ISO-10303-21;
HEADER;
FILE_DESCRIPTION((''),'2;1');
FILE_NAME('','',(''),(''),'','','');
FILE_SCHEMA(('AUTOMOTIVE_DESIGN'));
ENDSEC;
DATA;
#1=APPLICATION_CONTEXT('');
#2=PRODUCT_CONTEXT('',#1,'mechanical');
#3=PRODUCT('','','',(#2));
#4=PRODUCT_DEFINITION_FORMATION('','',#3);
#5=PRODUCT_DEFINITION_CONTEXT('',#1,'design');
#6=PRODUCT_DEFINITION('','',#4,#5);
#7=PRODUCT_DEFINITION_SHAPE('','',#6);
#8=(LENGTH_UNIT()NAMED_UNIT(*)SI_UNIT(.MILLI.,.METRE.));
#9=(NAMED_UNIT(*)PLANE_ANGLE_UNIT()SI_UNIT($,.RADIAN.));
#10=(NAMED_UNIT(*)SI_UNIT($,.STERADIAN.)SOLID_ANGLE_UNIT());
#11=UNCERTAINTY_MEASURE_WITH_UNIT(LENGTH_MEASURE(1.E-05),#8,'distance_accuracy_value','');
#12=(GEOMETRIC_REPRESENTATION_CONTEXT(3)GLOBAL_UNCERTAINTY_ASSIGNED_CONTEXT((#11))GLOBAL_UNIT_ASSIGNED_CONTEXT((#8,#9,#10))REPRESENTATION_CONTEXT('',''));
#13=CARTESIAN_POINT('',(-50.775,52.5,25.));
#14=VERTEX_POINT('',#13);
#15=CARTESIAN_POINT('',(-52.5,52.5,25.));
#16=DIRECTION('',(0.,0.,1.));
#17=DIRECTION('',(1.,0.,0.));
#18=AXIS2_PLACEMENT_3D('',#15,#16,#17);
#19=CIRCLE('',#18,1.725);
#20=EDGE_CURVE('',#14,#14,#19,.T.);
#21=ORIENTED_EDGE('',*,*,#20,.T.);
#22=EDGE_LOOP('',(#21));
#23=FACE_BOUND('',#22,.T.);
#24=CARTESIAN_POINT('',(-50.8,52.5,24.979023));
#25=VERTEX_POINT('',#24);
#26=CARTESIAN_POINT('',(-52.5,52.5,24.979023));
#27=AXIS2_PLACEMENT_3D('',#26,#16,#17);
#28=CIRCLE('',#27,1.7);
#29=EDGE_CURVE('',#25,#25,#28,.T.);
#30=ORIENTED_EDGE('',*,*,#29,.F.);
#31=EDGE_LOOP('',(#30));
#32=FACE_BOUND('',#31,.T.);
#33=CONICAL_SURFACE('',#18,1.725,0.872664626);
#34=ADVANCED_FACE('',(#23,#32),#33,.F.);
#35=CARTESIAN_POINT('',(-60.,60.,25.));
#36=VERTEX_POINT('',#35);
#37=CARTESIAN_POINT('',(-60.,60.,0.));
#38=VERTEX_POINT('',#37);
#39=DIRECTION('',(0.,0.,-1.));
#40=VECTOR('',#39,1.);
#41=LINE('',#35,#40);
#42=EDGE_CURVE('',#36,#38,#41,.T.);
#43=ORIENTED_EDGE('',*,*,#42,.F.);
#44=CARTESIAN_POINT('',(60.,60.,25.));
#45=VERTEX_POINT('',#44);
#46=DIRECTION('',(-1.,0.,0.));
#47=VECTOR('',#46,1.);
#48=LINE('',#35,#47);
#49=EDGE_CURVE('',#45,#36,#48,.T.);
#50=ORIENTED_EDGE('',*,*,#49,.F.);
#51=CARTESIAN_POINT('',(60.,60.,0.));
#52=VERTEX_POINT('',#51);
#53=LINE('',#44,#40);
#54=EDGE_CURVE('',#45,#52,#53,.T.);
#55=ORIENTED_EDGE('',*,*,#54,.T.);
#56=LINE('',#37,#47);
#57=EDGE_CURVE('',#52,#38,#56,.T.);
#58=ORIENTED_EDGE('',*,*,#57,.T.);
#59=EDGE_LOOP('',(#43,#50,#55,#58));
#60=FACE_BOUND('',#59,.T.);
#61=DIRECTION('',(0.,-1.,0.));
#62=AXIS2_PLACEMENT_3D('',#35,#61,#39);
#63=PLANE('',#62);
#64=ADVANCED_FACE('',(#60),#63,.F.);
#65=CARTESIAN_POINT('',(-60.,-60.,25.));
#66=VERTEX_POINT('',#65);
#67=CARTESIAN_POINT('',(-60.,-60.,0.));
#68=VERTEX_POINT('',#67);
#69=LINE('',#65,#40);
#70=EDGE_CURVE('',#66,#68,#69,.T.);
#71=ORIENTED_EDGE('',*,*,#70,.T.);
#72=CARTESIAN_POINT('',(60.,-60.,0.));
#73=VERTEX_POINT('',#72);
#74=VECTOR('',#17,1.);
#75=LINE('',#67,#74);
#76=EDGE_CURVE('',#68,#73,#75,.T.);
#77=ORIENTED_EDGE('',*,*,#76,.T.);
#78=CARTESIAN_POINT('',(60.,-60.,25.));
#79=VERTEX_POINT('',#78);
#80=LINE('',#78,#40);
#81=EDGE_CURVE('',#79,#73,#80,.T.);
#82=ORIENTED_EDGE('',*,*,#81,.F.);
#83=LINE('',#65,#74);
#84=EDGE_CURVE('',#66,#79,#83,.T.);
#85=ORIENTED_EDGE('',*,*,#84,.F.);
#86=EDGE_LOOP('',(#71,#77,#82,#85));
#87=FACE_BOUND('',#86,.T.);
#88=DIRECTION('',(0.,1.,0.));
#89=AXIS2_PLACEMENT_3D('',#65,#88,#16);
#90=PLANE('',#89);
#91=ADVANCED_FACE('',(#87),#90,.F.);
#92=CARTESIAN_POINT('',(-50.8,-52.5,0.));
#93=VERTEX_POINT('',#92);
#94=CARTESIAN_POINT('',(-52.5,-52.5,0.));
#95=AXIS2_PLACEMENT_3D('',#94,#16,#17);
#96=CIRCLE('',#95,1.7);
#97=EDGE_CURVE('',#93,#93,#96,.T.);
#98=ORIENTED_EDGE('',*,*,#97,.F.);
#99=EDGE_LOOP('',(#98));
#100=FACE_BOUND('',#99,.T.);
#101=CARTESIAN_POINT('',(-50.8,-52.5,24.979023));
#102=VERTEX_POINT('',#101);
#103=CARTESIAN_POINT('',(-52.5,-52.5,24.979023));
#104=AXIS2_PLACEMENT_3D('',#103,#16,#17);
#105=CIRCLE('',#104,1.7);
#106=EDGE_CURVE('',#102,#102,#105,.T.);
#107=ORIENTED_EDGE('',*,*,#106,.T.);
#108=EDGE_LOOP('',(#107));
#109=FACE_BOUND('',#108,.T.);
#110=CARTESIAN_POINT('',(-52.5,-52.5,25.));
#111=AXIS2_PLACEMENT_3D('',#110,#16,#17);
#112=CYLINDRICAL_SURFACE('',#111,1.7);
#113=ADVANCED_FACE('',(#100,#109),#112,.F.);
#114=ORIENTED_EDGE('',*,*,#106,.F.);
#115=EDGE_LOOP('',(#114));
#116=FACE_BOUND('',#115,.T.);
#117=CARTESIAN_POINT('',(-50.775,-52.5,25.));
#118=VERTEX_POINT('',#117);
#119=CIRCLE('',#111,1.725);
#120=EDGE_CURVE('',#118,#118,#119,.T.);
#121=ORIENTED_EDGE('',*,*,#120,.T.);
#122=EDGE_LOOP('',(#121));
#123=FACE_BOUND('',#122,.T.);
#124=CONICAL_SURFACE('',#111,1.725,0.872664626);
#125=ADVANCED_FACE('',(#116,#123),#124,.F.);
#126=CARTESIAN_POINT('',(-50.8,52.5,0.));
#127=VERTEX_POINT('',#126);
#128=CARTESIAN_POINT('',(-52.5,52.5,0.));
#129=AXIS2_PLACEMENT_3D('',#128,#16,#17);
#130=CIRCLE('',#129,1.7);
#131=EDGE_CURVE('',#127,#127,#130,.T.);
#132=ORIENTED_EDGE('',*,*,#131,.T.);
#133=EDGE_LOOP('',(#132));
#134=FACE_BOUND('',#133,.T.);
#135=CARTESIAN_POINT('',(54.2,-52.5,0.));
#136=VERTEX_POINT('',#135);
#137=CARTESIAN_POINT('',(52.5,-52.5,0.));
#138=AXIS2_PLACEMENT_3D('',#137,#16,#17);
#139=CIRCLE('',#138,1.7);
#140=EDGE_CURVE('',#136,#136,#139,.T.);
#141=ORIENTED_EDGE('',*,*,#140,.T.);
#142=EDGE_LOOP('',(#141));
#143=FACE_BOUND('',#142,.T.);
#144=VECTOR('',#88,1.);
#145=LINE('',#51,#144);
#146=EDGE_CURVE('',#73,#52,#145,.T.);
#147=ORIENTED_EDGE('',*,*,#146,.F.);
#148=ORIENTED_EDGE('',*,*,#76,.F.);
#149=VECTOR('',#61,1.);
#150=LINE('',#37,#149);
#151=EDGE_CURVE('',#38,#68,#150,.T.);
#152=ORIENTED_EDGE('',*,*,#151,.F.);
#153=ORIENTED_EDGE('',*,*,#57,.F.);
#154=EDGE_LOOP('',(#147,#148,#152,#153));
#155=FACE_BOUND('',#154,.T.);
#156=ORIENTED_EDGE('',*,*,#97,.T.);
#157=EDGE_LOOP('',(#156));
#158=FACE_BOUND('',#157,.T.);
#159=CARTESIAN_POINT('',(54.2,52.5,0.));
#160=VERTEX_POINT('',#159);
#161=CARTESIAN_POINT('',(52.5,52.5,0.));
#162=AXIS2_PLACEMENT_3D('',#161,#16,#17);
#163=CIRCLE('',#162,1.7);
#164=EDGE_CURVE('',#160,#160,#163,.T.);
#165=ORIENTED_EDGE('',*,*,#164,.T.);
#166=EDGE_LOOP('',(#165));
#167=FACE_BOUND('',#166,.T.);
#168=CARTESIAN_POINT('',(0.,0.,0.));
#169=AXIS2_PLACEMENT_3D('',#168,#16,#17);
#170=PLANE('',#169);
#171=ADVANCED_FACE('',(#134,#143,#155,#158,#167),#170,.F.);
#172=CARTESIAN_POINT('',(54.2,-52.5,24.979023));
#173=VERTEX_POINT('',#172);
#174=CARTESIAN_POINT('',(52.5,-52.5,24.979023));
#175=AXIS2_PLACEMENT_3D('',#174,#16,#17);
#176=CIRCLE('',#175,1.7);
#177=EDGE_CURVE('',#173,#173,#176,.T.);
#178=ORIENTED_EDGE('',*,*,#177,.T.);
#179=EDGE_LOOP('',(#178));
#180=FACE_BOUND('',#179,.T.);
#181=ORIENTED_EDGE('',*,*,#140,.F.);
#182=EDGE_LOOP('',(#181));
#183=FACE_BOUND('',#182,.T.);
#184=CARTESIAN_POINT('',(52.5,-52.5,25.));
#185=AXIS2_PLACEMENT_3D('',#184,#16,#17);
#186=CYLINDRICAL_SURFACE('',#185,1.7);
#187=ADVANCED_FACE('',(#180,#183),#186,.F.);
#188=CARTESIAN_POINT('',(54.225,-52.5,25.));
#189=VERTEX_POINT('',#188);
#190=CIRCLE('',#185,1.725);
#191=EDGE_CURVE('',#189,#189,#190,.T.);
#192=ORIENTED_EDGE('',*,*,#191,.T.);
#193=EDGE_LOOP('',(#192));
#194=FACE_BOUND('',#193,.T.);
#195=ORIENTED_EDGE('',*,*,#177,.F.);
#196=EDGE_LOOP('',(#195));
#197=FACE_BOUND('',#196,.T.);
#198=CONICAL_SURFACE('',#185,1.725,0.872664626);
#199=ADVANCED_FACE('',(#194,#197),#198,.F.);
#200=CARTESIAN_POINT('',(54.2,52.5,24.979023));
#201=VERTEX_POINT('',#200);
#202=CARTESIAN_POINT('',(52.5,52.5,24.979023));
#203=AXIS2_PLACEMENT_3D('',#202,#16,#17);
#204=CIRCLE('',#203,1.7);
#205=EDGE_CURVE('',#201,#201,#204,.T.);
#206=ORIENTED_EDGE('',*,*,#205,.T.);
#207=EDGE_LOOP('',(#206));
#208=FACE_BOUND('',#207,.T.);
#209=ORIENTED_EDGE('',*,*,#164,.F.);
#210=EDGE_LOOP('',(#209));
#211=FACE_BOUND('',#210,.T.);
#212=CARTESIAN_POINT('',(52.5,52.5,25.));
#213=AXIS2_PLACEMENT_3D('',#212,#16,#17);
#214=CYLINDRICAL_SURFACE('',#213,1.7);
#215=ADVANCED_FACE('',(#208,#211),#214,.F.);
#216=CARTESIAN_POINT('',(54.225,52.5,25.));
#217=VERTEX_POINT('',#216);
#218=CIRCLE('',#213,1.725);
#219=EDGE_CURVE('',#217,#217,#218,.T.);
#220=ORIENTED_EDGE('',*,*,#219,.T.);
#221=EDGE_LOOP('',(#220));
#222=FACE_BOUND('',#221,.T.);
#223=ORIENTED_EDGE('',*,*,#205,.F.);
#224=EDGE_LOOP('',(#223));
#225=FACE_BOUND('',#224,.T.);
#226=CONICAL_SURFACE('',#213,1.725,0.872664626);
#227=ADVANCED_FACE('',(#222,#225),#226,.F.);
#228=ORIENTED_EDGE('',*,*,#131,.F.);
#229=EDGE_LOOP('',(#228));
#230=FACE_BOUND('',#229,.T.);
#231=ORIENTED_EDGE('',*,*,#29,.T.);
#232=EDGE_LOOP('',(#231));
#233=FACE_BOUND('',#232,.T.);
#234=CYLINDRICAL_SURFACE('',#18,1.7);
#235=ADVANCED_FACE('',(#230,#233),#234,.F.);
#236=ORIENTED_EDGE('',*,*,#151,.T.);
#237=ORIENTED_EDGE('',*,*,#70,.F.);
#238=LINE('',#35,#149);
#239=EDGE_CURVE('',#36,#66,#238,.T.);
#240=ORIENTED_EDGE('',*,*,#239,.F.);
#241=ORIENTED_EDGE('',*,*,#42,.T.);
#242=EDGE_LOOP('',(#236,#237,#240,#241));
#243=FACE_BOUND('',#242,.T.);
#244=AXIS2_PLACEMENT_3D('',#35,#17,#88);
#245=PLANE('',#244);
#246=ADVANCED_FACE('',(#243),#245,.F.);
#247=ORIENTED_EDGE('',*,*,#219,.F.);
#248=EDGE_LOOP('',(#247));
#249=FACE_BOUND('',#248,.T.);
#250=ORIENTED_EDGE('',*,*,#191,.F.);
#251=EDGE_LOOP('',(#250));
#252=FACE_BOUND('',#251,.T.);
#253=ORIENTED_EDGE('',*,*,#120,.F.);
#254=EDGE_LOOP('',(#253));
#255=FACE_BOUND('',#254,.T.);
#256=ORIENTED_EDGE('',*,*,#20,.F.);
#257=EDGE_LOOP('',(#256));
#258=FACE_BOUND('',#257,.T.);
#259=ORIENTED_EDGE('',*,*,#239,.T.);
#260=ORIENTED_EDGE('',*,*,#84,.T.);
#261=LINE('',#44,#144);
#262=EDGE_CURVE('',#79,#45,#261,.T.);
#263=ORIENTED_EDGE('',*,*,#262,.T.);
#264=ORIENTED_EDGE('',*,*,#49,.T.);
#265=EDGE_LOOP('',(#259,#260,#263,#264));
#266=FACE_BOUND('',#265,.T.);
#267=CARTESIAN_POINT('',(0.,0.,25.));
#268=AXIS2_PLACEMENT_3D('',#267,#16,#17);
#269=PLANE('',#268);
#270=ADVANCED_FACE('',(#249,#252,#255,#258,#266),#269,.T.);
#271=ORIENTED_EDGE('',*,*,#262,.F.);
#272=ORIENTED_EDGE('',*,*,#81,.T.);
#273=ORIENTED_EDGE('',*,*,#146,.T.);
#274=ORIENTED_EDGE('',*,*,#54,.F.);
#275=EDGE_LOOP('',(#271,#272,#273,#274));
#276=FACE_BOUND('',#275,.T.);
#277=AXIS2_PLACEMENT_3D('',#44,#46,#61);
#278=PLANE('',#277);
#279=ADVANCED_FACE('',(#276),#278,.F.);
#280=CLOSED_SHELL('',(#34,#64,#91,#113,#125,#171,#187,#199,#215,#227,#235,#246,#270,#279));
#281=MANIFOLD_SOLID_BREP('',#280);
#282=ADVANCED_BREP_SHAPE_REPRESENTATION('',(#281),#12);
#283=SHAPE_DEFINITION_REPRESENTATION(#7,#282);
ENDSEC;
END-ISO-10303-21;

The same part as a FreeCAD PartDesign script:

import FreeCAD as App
import Part
import Sketcher
from FreeCAD import Vector

doc = App.newDocument("Part")
params = doc.addObject("Spreadsheet::Sheet", "Params")
for row, (alias, value) in enumerate([
    ("sketch1_width", "120 mm"),
    ("pad1_length", "25 mm"),
    ("sketch2_diameter", "3.4 mm"),
    ("hole_diameter", "3.4 mm"),
    ("hole_csink_diameter", "3.45 mm"),
], start=1):
    params.set(f"A{row}", alias)
    params.set(f"B{row}", "=" + value)
    params.setAlias(f"B{row}", alias)

body = doc.addObject("PartDesign::Body", "Body")

# Sketch on XY plane
sketch1 = body.newObject("Sketcher::SketchObject", "Sketch")
sketch1.AttachmentSupport = (doc.getObject("XY_Plane"), [""])
sketch1.MapMode = "FlatFace"
sketch1.addGeometry([
    Part.LineSegment(Vector(-60, 60, 0), Vector(-60, -60, 0)),
    Part.LineSegment(Vector(-60, -60, 0), Vector(60, -60, 0)),
    Part.LineSegment(Vector(60, -60, 0), Vector(60, 60, 0)),
    Part.LineSegment(Vector(60, 60, 0), Vector(-60, 60, 0)),
], False)
sketch1.addConstraint([
    Sketcher.Constraint("Coincident", 0, 2, 1, 1),
    Sketcher.Constraint("Coincident", 1, 2, 2, 1),
    Sketcher.Constraint("Coincident", 2, 2, 3, 1),
    Sketcher.Constraint("Coincident", 3, 2, 0, 1),
    Sketcher.Constraint("Vertical", 0),
    Sketcher.Constraint("Horizontal", 1),
    Sketcher.Constraint("Vertical", 2),
    Sketcher.Constraint("Horizontal", 3),
    Sketcher.Constraint("Symmetric", 0, 2, 2, 2, -1, 1),
    Sketcher.Constraint("Equal", 3, 0),
    Sketcher.Constraint("DistanceX", 1, 1, 1, 2, 120.0),
])
sketch1.setExpression("Constraints[10]", "Params.sketch1_width")
pad1 = body.newObject("PartDesign::Pad", "Pad")
pad1.Profile = sketch1
pad1.setExpression("Length", "Params.pad1_length")

# Sketch on XY plane
sketch2 = body.newObject("Sketcher::SketchObject", "Sketch001")
sketch2.AttachmentSupport = (doc.getObject("XY_Plane"), [""])
sketch2.MapMode = "FlatFace"
sketch2.AttachmentOffset = App.Placement(Vector(0, 0, 25), App.Rotation())
sketch2.addGeometry([
    Part.Circle(Vector(-52.5, 52.5, 0), Vector(0, 0, 1), 1.7),
    Part.Circle(Vector(52.5, 52.5, 0), Vector(0, 0, 1), 1.7),
    Part.Circle(Vector(52.5, -52.5, 0), Vector(0, 0, 1), 1.7),
    Part.Circle(Vector(-52.5, -52.5, 0), Vector(0, 0, 1), 1.7),
], False)
sketch2.addConstraint([
    Sketcher.Constraint("Equal", 0, 1),
    Sketcher.Constraint("Equal", 1, 2),
    Sketcher.Constraint("Equal", 2, 3),
    Sketcher.Constraint("Symmetric", 0, 3, 2, 3, -1, 1),
    Sketcher.Constraint("Symmetric", 1, 3, 3, 3, -1, 1),
    Sketcher.Constraint("Symmetric", 0, 3, 1, 3, -2),
    Sketcher.Constraint("Diameter", 0, 3.4),
    Sketcher.Constraint("DistanceX", 0, 3, 1, 3, 105.0),
    Sketcher.Constraint("DistanceY", 2, 3, 1, 3, 105.0),
])
sketch2.setExpression("Constraints[6]", "Params.sketch2_diameter")
doc.recompute()
hole = body.newObject("PartDesign::Hole", "Hole")
hole.Profile = sketch2
hole.ThreadType = "None"
hole.setExpression("Diameter", "Params.hole_diameter")
hole.DepthType = "ThroughAll"
hole.HoleCutType = "Countersink"
hole.setExpression("HoleCutDiameter", "Params.hole_csink_diameter")
hole.HoleCutCountersinkAngle = 100

doc.recompute()
